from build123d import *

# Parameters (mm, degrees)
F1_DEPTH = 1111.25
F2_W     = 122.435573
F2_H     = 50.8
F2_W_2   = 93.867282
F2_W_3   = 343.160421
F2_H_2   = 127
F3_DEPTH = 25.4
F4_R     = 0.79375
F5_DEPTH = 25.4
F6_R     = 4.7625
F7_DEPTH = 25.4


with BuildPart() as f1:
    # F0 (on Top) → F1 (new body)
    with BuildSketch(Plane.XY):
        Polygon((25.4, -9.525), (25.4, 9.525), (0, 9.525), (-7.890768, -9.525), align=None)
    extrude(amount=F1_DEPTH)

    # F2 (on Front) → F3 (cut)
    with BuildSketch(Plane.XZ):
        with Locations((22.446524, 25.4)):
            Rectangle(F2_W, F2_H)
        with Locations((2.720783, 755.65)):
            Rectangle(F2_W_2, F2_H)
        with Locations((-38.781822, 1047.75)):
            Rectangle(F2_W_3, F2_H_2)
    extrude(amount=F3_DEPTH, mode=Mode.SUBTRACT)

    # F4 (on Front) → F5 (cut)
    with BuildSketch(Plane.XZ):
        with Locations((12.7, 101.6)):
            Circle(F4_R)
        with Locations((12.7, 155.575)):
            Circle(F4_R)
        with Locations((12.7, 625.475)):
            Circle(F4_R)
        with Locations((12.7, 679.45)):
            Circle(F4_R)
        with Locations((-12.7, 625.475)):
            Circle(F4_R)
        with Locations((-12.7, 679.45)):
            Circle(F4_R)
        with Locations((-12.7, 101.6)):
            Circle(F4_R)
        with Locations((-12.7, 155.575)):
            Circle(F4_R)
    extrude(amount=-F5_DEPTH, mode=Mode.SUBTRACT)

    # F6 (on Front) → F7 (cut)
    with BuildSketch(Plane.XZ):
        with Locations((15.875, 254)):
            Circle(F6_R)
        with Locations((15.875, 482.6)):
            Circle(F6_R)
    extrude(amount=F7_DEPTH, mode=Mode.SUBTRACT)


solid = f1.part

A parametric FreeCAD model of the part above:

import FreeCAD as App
import Part
import Sketcher
from FreeCAD import Vector
Q = App.Units.Quantity


def add_polygon(sketch, points):
    """Adds a closed chain of lines whose ends are joined by coincident constraints."""
    first, n = sketch.GeometryCount, len(points)
    for a, b in zip(points, points[1:] + points[:1]):
        sketch.addGeometry(Part.LineSegment(App.Vector(*a, 0), App.Vector(*b, 0)), False)
    for i in range(n):
        sketch.addConstraint(Sketcher.Constraint("Coincident", first + i, 2, first + (i + 1) % n, 1))

doc = App.newDocument("Part")
body = doc.addObject("PartDesign::Body", "Body")

sketch1 = doc.addObject("Sketcher::SketchObject", "Sketch")
body.addObject(sketch1)
sketch1.AttachmentSupport = (doc.XY_Plane, [""])
sketch1.MapMode = "FlatFace"
add_polygon(sketch1, [(25, -10), (25, 10), (0, 10), (-8, -10)])
sketch1.addConstraint([
    Sketcher.Constraint("Vertical", 0),
    Sketcher.Constraint("Horizontal", 1),
    Sketcher.Constraint("Horizontal", 3),
    Sketcher.Constraint("PointOnObject", 1, 2, -2),
    Sketcher.Constraint("DistanceX", 1, 2, 1, 1, Q("1 in")),
    Sketcher.Constraint("DistanceY", 0, 1, 0, 2, Q("0.75 in")),
    Sketcher.Constraint("Angle", 2, Q("-112.499999 deg")),
    Sketcher.Constraint("DistanceY", -1, 1, 0, 2, Q("0.375 in")),
])
pad1 = doc.addObject("PartDesign::Pad", "Pad")
body.addObject(pad1)
pad1.Profile = sketch1
pad1.Length = Q("43.75 in")

sketch2 = doc.addObject("Sketcher::SketchObject", "Sketch001")
body.addObject(sketch2)
sketch2.AttachmentSupport = (doc.XZ_Plane, [""])
sketch2.MapMode = "FlatFace"
add_polygon(sketch2, [(-39, 51), (-39, 0), (84, 0), (84, 51)])
add_polygon(sketch2, [(-44, 781), (-44, 730), (50, 730), (50, 781)])
add_polygon(sketch2, [(-210, 1111), (-210, 984), (133, 984), (133, 1111)])
sketch2.addConstraint([
    Sketcher.Constraint("Vertical", 0),
    Sketcher.Constraint("Horizontal", 1),
    Sketcher.Constraint("Vertical", 2),
    Sketcher.Constraint("Horizontal", 3),
    Sketcher.Constraint("Vertical", 4),
    Sketcher.Constraint("Horizontal", 5),
    Sketcher.Constraint("Vertical", 6),
    Sketcher.Constraint("Horizontal", 7),
    Sketcher.Constraint("Vertical", 8),
    Sketcher.Constraint("Horizontal", 9),
    Sketcher.Constraint("Vertical", 10),
    Sketcher.Constraint("Horizontal", 11),
    Sketcher.Constraint("PointOnObject", 0, 2, -1),
    Sketcher.Constraint("Equal", 2, 4),
    Sketcher.Constraint("DistanceY", 0, 2, 0, 1, Q("2 in")),
    Sketcher.Constraint("DistanceY", 8, 2, 8, 1, Q("5 in")),
    Sketcher.Constraint("DistanceY", 7, 2, 8, 2, Q("8 in")),
    Sketcher.Constraint("DistanceY", -1, 1, 4, 2, Q("28.75 in")),
    Sketcher.Constraint("DistanceX", 5, 1, 5, 2, Q("93.867282 mm")),
    Sketcher.Constraint("DistanceX", 9, 1, 9, 2, Q("343.160421 mm")),
    Sketcher.Constraint("DistanceX", 1, 1, 1, 2, Q("122.435573 mm")),
    Sketcher.Constraint("DistanceX", -1, 1, 1, 2, Q("83.66431 mm")),
    Sketcher.Constraint("DistanceX", -1, 1, 9, 2, Q("132.798388 mm")),
    Sketcher.Constraint("DistanceX", 4, 2, 2, 2, Q("127.877168 mm")),
])
pocket1 = doc.addObject("PartDesign::Pocket", "Pocket")
body.addObject(pocket1)
pocket1.Profile = sketch2
pocket1.Length = Q("1 in")
pocket1.Reversed = True

sketch3 = doc.addObject("Sketcher::SketchObject", "Sketch002")
body.addObject(sketch3)
sketch3.AttachmentSupport = (doc.XZ_Plane, [""])
sketch3.MapMode = "FlatFace"
sketch3.addGeometry([
    Part.Circle(Vector(12.7, 101.6, 0), Vector(0, 0, 1), 0.8),
    Part.Circle(Vector(12.7, 155.6, 0), Vector(0, 0, 1), 0.8),
    Part.Circle(Vector(12.7, 625.5, 0), Vector(0, 0, 1), 0.8),
    Part.Circle(Vector(12.7, 679.5, 0), Vector(0, 0, 1), 0.8),
    Part.Circle(Vector(-12.7, 625.5, 0), Vector(0, 0, 1), 0.8),
    Part.Circle(Vector(-12.7, 679.5, 0), Vector(0, 0, 1), 0.8),
    Part.Circle(Vector(-12.7, 101.6, 0), Vector(0, 0, 1), 0.8),
    Part.Circle(Vector(-12.7, 155.6, 0), Vector(0, 0, 1), 0.8),
], False)
sketch3.addConstraint([
    Sketcher.Constraint("Equal", 0, 1),
    Sketcher.Constraint("Equal", 1, 2),
    Sketcher.Constraint("Equal", 2, 3),
    Sketcher.Constraint("Equal", 3, 4),
    Sketcher.Constraint("Equal", 4, 5),
    Sketcher.Constraint("Equal", 5, 6),
    Sketcher.Constraint("Equal", 6, 7),
    Sketcher.Constraint("Symmetric", 2, 3, 4, 3, -2),
    Sketcher.Constraint("Symmetric", 3, 3, 5, 3, -2),
    Sketcher.Constraint("Symmetric", 0, 3, 6, 3, -2),
    Sketcher.Constraint("Symmetric", 1, 3, 7, 3, -2),
    Sketcher.Constraint("Vertical", 0, 3, 1, 3),
    Sketcher.Constraint("Vertical", 1, 3, 2, 3),
    Sketcher.Constraint("Vertical", 2, 3, 3, 3),
    Sketcher.Constraint("Diameter", 0, Q("0.0625 in")),
    Sketcher.Constraint("DistanceY", -1, 1, 0, 3, Q("4 in")),
    Sketcher.Constraint("DistanceX", 4, 3, 2, 3, Q("1 in")),
    Sketcher.Constraint("DistanceY", 1, 3, 2, 3, Q("18.5 in")),
    Sketcher.Constraint("DistanceY", -1, 1, 3, 3, Q("26.75 in")),
    Sketcher.Constraint("DistanceY", -1, 1, 1, 3, Q("6.125 in")),
])
pocket2 = doc.addObject("PartDesign::Pocket", "Pocket001")
body.addObject(pocket2)
pocket2.Profile = sketch3
pocket2.Length = Q("1 in")

sketch4 = doc.addObject("Sketcher::SketchObject", "Sketch003")
body.addObject(sketch4)
sketch4.AttachmentSupport = (doc.XZ_Plane, [""])
sketch4.MapMode = "FlatFace"
sketch4.addGeometry([
    Part.Circle(Vector(15.9, 254, 0), Vector(0, 0, 1), 4.8),
    Part.Circle(Vector(15.9, 482.6, 0), Vector(0, 0, 1), 4.8),
], False)
sketch4.addConstraint([
    Sketcher.Constraint("Equal", 0, 1),
    Sketcher.Constraint("Vertical", 0, 3, 1, 3),
    Sketcher.Constraint("Diameter", 0, Q("0.375 in")),
    Sketcher.Constraint("DistanceY", -1, 1, 0, 3, Q("10 in")),
    Sketcher.Constraint("DistanceY", -1, 1, 1, 3, Q("19 in")),
    Sketcher.Constraint("DistanceX", -1, 1, 0, 3, Q("0.625 in")),
])
pocket3 = doc.addObject("PartDesign::Pocket", "Pocket002")
body.addObject(pocket3)
pocket3.Profile = sketch4
pocket3.Length = Q("1 in")
pocket3.Reversed = True

doc.recompute()
